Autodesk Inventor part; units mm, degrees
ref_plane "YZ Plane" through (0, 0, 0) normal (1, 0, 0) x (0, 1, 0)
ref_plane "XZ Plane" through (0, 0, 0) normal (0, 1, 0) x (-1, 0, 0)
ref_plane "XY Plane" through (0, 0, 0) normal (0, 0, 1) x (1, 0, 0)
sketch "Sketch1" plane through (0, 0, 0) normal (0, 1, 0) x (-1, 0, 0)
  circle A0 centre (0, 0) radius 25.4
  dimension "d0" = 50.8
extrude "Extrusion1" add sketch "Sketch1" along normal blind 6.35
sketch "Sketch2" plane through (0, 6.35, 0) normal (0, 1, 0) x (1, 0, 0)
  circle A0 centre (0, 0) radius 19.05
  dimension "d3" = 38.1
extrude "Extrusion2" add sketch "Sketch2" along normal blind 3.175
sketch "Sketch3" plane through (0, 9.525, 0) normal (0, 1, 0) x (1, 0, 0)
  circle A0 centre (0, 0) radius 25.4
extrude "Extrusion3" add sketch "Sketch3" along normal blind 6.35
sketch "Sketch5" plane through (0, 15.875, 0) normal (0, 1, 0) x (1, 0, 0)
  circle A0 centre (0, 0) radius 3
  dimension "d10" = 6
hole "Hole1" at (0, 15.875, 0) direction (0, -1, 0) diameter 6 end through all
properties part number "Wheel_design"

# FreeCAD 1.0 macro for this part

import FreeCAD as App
import Part
import Sketcher

V = App.Vector
Q = App.Units.Quantity

doc = App.newDocument("Part")
body = doc.addObject("PartDesign::Body", "Body")

# Sketch on XZ plane
sketch1 = body.newObject("Sketcher::SketchObject", "Sketch")
sketch1.AttachmentSupport = (doc.getObject("XZ_Plane"), [""])
sketch1.MapMode = "FlatFace"
sketch1.addGeometry(Part.Circle(V(0, 0, 0), V(0, 0, 1), 25), False)
sketch1.addConstraint(Sketcher.Constraint("Coincident", 0, 3, -1, 1))
sketch1.addConstraint(Sketcher.Constraint("Diameter", 0, Q("2 in")))
pad1 = body.newObject("PartDesign::Pad", "Pad")
pad1.Profile = sketch1
pad1.Length = Q("0.25 in")
pad1.Reversed = True

# Sketch on XZ plane
sketch2 = body.newObject("Sketcher::SketchObject", "Sketch001")
sketch2.AttachmentSupport = (doc.getObject("XZ_Plane"), [""])
sketch2.MapMode = "FlatFace"
sketch2.AttachmentOffset = App.Placement(V(0, 0, -0.25 * 25.4), App.Rotation())
sketch2.addGeometry(Part.Circle(V(0, 0, 0), V(0, 0, 1), 19), False)
sketch2.addConstraint(Sketcher.Constraint("Coincident", 0, 3, -1, 1))
sketch2.addConstraint(Sketcher.Constraint("Diameter", 0, Q("1.5 in")))
pad2 = body.newObject("PartDesign::Pad", "Pad001")
pad2.Profile = sketch2
pad2.Length = Q("0.125 in")
pad2.Reversed = True

# Sketch on XZ plane
sketch3 = body.newObject("Sketcher::SketchObject", "Sketch002")
sketch3.AttachmentSupport = (doc.getObject("XZ_Plane"), [""])
sketch3.MapMode = "FlatFace"
sketch3.AttachmentOffset = App.Placement(V(0, 0, -0.375 * 25.4), App.Rotation())
sketch3.addGeometry(Part.Circle(V(0, 0, 0), V(0, 0, 1), 25), False)
sketch3.addConstraint(Sketcher.Constraint("Coincident", 0, 3, -1, 1))
sketch3.addConstraint(Sketcher.Constraint("Diameter", 0, Q("2 in")))
pad3 = body.newObject("PartDesign::Pad", "Pad002")
pad3.Profile = sketch3
pad3.Length = Q("0.25 in")
pad3.Reversed = True

# Sketch on XZ plane
sketch4 = body.newObject("Sketcher::SketchObject", "Sketch003")
sketch4.AttachmentSupport = (doc.getObject("XZ_Plane"), [""])
sketch4.MapMode = "FlatFace"
sketch4.AttachmentOffset = App.Placement(V(0, 0, -0.625 * 25.4), App.Rotation())
sketch4.addGeometry(Part.Circle(V(0, 0, 0), V(0, 0, 1), 3), False)
sketch4.addConstraint(Sketcher.Constraint("Coincident", 0, 3, -1, 1))
sketch4.addConstraint(Sketcher.Constraint("Diameter", 0, 6.0))
doc.recompute()
hole = body.newObject("PartDesign::Hole", "Hole")
hole.Profile = sketch4
hole.ThreadType = "None"
hole.Diameter = 6
hole.DepthType = "ThroughAll"
hole.Reversed = True

doc.recompute()
